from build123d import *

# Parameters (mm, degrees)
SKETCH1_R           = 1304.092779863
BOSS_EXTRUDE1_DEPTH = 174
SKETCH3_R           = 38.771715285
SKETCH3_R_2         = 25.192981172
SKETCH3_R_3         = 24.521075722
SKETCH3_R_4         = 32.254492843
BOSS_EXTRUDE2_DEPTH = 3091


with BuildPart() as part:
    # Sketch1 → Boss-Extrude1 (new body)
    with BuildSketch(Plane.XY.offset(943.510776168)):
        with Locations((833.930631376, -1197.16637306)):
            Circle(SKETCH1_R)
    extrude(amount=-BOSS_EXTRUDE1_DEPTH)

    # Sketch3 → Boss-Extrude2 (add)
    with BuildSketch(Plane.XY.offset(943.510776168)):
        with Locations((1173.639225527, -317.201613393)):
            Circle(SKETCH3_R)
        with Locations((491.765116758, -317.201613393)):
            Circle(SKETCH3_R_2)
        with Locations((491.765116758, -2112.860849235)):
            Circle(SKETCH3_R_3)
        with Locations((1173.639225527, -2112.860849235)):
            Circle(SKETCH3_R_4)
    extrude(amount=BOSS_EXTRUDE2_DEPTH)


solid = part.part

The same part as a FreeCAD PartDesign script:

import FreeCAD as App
import Part
import Sketcher

V = App.Vector

doc = App.newDocument("Part")
body = doc.addObject("PartDesign::Body", "Body")

sketch1 = doc.addObject("Sketcher::SketchObject", "Sketch")
body.addObject(sketch1)
sketch1.AttachmentSupport = (doc.XY_Plane, [""])
sketch1.MapMode = "FlatFace"
sketch1.AttachmentOffset = App.Placement(V(0, 0, 943.510776), App.Rotation())
sketch1.addGeometry(Part.Circle(V(833.930631, -1197.166373, 0), V(0, 0, 1), 1304.09278), False)
sketch1.addConstraint([
    Sketcher.Constraint("Diameter", 0, 2608.18556),
    Sketcher.Constraint("DistanceX", -1, 1, 0, 3, 833.930631),
    Sketcher.Constraint("DistanceY", 0, 3, -1, 1, 1197.166373),
])
pad1 = doc.addObject("PartDesign::Pad", "Pad")
body.addObject(pad1)
pad1.Profile = sketch1
pad1.Length = 174
pad1.Reversed = True

sketch2 = doc.addObject("Sketcher::SketchObject", "Sketch001")
body.addObject(sketch2)
sketch2.AttachmentSupport = (doc.XY_Plane, [""])
sketch2.MapMode = "FlatFace"
sketch2.AttachmentOffset = App.Placement(V(0, 0, 943.510776), App.Rotation())
sketch2.addGeometry([
    Part.Circle(V(1173.639226, -317.201613, 0), V(0, 0, 1), 38.771715),
    Part.Circle(V(491.765117, -317.201613, 0), V(0, 0, 1), 25.192981),
    Part.Circle(V(491.765117, -2112.860849, 0), V(0, 0, 1), 24.521076),
    Part.Circle(V(1173.639226, -2112.860849, 0), V(0, 0, 1), 32.254493),
], False)
sketch2.addConstraint([
    Sketcher.Constraint("Horizontal", 0, 3, 1, 3),
    Sketcher.Constraint("Horizontal", 2, 3, 3, 3),
    Sketcher.Constraint("Vertical", 1, 3, 2, 3),
    Sketcher.Constraint("Vertical", 0, 3, 3, 3),
    Sketcher.Constraint("Diameter", 0, 77.543431),
    Sketcher.Constraint("Diameter", 2, 49.042151),
    Sketcher.Constraint("Diameter", 1, 50.385962),
    Sketcher.Constraint("Diameter", 3, 64.508986),
    Sketcher.Constraint("DistanceY", 2, 3, -1, 1, 2112.860849),
    Sketcher.Constraint("DistanceX", 1, 3, 0, 3, 681.874109),
    Sketcher.Constraint("DistanceX", -1, 1, 0, 3, 1173.639226),
    Sketcher.Constraint("DistanceY", 0, 3, -1, 1, 317.201613),
])
pad2 = doc.addObject("PartDesign::Pad", "Pad001")
body.addObject(pad2)
pad2.Profile = sketch2
pad2.Length = 3091

doc.recompute()
